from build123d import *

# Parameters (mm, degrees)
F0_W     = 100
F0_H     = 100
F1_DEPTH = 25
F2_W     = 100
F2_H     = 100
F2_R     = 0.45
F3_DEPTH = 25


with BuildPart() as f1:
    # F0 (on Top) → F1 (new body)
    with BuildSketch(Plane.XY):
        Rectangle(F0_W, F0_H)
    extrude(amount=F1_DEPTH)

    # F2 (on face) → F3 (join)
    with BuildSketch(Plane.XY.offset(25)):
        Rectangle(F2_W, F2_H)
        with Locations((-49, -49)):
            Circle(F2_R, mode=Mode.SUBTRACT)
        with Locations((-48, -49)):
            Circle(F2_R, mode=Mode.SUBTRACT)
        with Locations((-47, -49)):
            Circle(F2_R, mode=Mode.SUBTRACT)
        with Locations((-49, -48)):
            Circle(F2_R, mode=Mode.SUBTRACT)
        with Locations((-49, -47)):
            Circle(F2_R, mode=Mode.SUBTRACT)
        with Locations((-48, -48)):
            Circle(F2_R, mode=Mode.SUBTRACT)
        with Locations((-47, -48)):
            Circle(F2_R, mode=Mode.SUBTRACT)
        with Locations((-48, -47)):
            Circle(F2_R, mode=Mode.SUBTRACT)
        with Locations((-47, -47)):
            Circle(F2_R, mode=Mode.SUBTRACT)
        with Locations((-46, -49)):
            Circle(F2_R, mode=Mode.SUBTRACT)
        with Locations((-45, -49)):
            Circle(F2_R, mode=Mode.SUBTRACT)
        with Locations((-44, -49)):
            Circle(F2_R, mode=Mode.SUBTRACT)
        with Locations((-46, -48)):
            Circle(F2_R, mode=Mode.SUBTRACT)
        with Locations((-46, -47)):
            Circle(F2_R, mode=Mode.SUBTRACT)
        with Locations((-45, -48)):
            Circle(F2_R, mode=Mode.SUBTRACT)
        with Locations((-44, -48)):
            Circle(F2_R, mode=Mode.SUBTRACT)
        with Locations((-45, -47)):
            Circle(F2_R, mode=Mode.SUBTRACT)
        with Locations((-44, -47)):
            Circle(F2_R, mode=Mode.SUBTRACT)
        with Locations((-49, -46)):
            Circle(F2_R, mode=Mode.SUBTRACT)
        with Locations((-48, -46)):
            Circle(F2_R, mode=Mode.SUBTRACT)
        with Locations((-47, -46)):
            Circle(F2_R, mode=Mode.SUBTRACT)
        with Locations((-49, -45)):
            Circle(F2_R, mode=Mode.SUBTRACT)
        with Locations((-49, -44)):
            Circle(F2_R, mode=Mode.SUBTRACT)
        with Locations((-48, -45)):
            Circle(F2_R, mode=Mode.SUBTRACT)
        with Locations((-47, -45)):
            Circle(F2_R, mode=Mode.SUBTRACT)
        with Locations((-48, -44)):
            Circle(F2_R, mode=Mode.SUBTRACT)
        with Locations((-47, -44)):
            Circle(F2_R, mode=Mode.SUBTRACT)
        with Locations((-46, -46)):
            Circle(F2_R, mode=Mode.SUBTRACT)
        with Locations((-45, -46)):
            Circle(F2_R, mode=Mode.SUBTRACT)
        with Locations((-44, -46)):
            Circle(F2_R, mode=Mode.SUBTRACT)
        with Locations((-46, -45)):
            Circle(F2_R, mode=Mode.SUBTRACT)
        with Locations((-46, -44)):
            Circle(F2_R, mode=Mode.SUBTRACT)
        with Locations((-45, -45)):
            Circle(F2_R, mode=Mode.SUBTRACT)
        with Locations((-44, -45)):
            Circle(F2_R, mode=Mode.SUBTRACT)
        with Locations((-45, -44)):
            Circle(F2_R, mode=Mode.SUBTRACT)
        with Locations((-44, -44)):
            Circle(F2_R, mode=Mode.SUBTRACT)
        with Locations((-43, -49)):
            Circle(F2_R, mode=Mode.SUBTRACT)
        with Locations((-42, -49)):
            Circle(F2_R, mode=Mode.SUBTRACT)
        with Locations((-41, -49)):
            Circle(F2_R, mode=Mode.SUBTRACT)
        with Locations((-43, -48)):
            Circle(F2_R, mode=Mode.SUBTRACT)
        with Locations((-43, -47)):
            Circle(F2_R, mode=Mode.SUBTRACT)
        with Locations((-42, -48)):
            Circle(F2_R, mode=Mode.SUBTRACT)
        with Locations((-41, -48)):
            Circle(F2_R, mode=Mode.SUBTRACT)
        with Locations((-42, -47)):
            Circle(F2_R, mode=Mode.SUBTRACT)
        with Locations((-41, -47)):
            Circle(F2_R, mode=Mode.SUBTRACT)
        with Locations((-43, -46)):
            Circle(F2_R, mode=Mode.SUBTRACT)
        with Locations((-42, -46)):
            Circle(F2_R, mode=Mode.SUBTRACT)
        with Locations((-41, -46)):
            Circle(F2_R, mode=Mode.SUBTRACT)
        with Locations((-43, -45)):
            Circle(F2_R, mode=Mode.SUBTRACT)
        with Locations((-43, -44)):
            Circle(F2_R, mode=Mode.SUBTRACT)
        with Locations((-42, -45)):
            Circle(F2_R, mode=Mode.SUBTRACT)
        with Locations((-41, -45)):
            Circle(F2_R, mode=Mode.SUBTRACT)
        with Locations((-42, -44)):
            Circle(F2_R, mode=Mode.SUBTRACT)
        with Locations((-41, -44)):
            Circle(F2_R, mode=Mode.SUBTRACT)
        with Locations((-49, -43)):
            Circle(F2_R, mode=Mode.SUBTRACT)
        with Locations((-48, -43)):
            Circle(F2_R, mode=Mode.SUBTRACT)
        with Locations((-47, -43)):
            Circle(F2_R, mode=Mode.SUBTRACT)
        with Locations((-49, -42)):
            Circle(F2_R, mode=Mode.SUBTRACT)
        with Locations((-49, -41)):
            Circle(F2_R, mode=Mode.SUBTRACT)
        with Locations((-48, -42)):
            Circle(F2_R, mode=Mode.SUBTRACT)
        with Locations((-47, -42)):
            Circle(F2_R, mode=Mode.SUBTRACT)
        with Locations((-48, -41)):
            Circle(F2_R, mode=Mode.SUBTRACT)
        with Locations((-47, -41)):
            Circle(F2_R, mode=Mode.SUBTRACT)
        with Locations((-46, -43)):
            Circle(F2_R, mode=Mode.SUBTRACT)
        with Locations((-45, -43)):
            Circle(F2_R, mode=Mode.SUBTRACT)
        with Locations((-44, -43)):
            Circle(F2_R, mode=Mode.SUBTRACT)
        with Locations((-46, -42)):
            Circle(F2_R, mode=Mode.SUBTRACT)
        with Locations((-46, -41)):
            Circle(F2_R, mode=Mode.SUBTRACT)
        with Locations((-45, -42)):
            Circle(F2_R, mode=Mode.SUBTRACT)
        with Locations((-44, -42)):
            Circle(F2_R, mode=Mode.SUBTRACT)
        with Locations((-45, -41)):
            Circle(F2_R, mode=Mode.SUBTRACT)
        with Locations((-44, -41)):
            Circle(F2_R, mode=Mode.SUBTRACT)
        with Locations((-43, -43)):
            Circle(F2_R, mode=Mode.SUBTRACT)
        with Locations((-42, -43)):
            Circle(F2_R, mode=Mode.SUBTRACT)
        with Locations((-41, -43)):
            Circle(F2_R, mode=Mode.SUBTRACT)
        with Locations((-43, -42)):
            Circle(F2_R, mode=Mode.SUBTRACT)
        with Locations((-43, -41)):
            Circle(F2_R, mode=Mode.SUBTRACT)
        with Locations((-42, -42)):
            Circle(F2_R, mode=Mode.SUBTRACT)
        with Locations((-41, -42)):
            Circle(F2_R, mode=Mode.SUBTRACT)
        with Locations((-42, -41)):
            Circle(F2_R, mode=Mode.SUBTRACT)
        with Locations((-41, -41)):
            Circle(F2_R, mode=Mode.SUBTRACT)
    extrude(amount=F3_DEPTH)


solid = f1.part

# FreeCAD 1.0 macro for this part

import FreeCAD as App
import Part
import Sketcher
Q = App.Units.Quantity

doc = App.newDocument("Part")
body = doc.addObject("PartDesign::Body", "Body")

# Sketch on XY plane
sketch1 = doc.addObject("Sketcher::SketchObject", "Sketch")
body.addObject(sketch1)
sketch1.AttachmentSupport = (doc.XY_Plane, [""])
sketch1.MapMode = "FlatFace"
sketch1.addGeometry([
    Part.LineSegment(App.Vector(-50, 50, 0), App.Vector(-50, -50, 0)),
    Part.LineSegment(App.Vector(-50, -50, 0), App.Vector(50, -50, 0)),
    Part.LineSegment(App.Vector(50, -50, 0), App.Vector(50, 50, 0)),
    Part.LineSegment(App.Vector(50, 50, 0), App.Vector(-50, 50, 0)),
], False)
sketch1.addConstraint([
    Sketcher.Constraint("Coincident", 0, 2, 1, 1),
    Sketcher.Constraint("Coincident", 1, 2, 2, 1),
    Sketcher.Constraint("Coincident", 2, 2, 3, 1),
    Sketcher.Constraint("Coincident", 3, 2, 0, 1),
    Sketcher.Constraint("Vertical", 0),
    Sketcher.Constraint("Horizontal", 1),
    Sketcher.Constraint("Vertical", 2),
    Sketcher.Constraint("Horizontal", 3),
    Sketcher.Constraint("Symmetric", 0, 2, 2, 2, -1, 1),
    Sketcher.Constraint("Equal", 3, 0),
    Sketcher.Constraint("DistanceX", 1, 1, 1, 2, Q("100 mm")),
])
pad1 = doc.addObject("PartDesign::Pad", "Pad")
body.addObject(pad1)
pad1.Profile = sketch1
pad1.Length = 25

# Sketch on XY plane
sketch2 = doc.addObject("Sketcher::SketchObject", "Sketch001")
body.addObject(sketch2)
sketch2.AttachmentSupport = (doc.XY_Plane, [""])
sketch2.MapMode = "FlatFace"
sketch2.AttachmentOffset = App.Placement(App.Vector(0, 0, 25), App.Rotation())
sketch2.addGeometry([
    Part.LineSegment(App.Vector(-50, 50, 0), App.Vector(-50, -50, 0)),  # 0
    Part.LineSegment(App.Vector(-50, -50, 0), App.Vector(50, -50, 0)),  # 1
    Part.LineSegment(App.Vector(50, -50, 0), App.Vector(50, 50, 0)),  # 2
    Part.LineSegment(App.Vector(50, 50, 0), App.Vector(-50, 50, 0)),  # 3
    Part.Circle(App.Vector(-49, -49, 0), App.Vector(0, 0, 1), 0.45),  # 4
    Part.Circle(App.Vector(-48, -49, 0), App.Vector(0, 0, 1), 0.45),  # 5
    Part.Circle(App.Vector(-49, -48, 0), App.Vector(0, 0, 1), 0.45),  # 6
    Part.Circle(App.Vector(-48, -48, 0), App.Vector(0, 0, 1), 0.45),  # 7
    Part.Circle(App.Vector(-47, -49, 0), App.Vector(0, 0, 1), 0.45),  # 8
    Part.Circle(App.Vector(-46, -49, 0), App.Vector(0, 0, 1), 0.45),  # 9
    Part.Circle(App.Vector(-47, -48, 0), App.Vector(0, 0, 1), 0.45),  # 10
    Part.Circle(App.Vector(-46, -48, 0), App.Vector(0, 0, 1), 0.45),  # 11
    Part.Circle(App.Vector(-49, -47, 0), App.Vector(0, 0, 1), 0.45),  # 12
    Part.Circle(App.Vector(-48, -47, 0), App.Vector(0, 0, 1), 0.45),  # 13
    Part.Circle(App.Vector(-49, -46, 0), App.Vector(0, 0, 1), 0.45),  # 14
    Part.Circle(App.Vector(-48, -46, 0), App.Vector(0, 0, 1), 0.45),  # 15
    Part.Circle(App.Vector(-47, -47, 0), App.Vector(0, 0, 1), 0.45),  # 16
    Part.Circle(App.Vector(-46, -47, 0), App.Vector(0, 0, 1), 0.45),  # 17
    Part.Circle(App.Vector(-47, -46, 0), App.Vector(0, 0, 1), 0.45),  # 18
    Part.Circle(App.Vector(-46, -46, 0), App.Vector(0, 0, 1), 0.45),  # 19
    Part.Circle(App.Vector(-45, -49, 0), App.Vector(0, 0, 1), 0.45),  # 20
    Part.Circle(App.Vector(-44, -49, 0), App.Vector(0, 0, 1), 0.45),  # 21
    Part.Circle(App.Vector(-43, -49, 0), App.Vector(0, 0, 1), 0.45),  # 22
    Part.Circle(App.Vector(-45, -48, 0), App.Vector(0, 0, 1), 0.45),  # 23
    Part.Circle(App.Vector(-44, -48, 0), App.Vector(0, 0, 1), 0.45),  # 24
    Part.Circle(App.Vector(-43, -48, 0), App.Vector(0, 0, 1), 0.45),  # 25
    Part.Circle(App.Vector(-42, -49, 0), App.Vector(0, 0, 1), 0.45),  # 26
    Part.Circle(App.Vector(-41, -49, 0), App.Vector(0, 0, 1), 0.45),  # 27
    Part.Circle(App.Vector(-42, -48, 0), App.Vector(0, 0, 1), 0.45),  # 28
    Part.Circle(App.Vector(-41, -48, 0), App.Vector(0, 0, 1), 0.45),  # 29
    Part.Circle(App.Vector(-45, -47, 0), App.Vector(0, 0, 1), 0.45),  # 30
    Part.Circle(App.Vector(-44, -47, 0), App.Vector(0, 0, 1), 0.45),  # 31
    Part.Circle(App.Vector(-43, -47, 0), App.Vector(0, 0, 1), 0.45),  # 32
    Part.Circle(App.Vector(-45, -46, 0), App.Vector(0, 0, 1), 0.45),  # 33
    Part.Circle(App.Vector(-44, -46, 0), App.Vector(0, 0, 1), 0.45),  # 34
    Part.Circle(App.Vector(-43, -46, 0), App.Vector(0, 0, 1), 0.45),  # 35
    Part.Circle(App.Vector(-42, -47, 0), App.Vector(0, 0, 1), 0.45),  # 36
    Part.Circle(App.Vector(-41, -47, 0), App.Vector(0, 0, 1), 0.45),  # 37
    Part.Circle(App.Vector(-42, -46, 0), App.Vector(0, 0, 1), 0.45),  # 38
    Part.Circle(App.Vector(-41, -46, 0), App.Vector(0, 0, 1), 0.45),  # 39
    Part.Circle(App.Vector(-49, -45, 0), App.Vector(0, 0, 1), 0.45),  # 40
    Part.Circle(App.Vector(-49, -44, 0), App.Vector(0, 0, 1), 0.45),  # 41
    Part.Circle(App.Vector(-48, -45, 0), App.Vector(0, 0, 1), 0.45),  # 42
    Part.Circle(App.Vector(-48, -44, 0), App.Vector(0, 0, 1), 0.45),  # 43
    Part.Circle(App.Vector(-49, -43, 0), App.Vector(0, 0, 1), 0.45),  # 44
    Part.Circle(App.Vector(-48, -43, 0), App.Vector(0, 0, 1), 0.45),  # 45
    Part.Circle(App.Vector(-47, -45, 0), App.Vector(0, 0, 1), 0.45),  # 46
    Part.Circle(App.Vector(-47, -44, 0), App.Vector(0, 0, 1), 0.45),  # 47
    Part.Circle(App.Vector(-46, -45, 0), App.Vector(0, 0, 1), 0.45),  # 48
    Part.Circle(App.Vector(-46, -44, 0), App.Vector(0, 0, 1), 0.45),  # 49
    Part.Circle(App.Vector(-47, -43, 0), App.Vector(0, 0, 1), 0.45),  # 50
    Part.Circle(App.Vector(-46, -43, 0), App.Vector(0, 0, 1), 0.45),  # 51
    Part.Circle(App.Vector(-49, -42, 0), App.Vector(0, 0, 1), 0.45),  # 52
    Part.Circle(App.Vector(-48, -42, 0), App.Vector(0, 0, 1), 0.45),  # 53
    Part.Circle(App.Vector(-49, -41, 0), App.Vector(0, 0, 1), 0.45),  # 54
    Part.Circle(App.Vector(-48, -41, 0), App.Vector(0, 0, 1), 0.45),  # 55
    Part.Circle(App.Vector(-47, -42, 0), App.Vector(0, 0, 1), 0.45),  # 56
    Part.Circle(App.Vector(-46, -42, 0), App.Vector(0, 0, 1), 0.45),  # 57
    Part.Circle(App.Vector(-47, -41, 0), App.Vector(0, 0, 1), 0.45),  # 58
    Part.Circle(App.Vector(-46, -41, 0), App.Vector(0, 0, 1), 0.45),  # 59
    Part.Circle(App.Vector(-45, -45, 0), App.Vector(0, 0, 1), 0.45),  # 60
    Part.Circle(App.Vector(-44, -45, 0), App.Vector(0, 0, 1), 0.45),  # 61
    Part.Circle(App.Vector(-45, -44, 0), App.Vector(0, 0, 1), 0.45),  # 62
    Part.Circle(App.Vector(-44, -44, 0), App.Vector(0, 0, 1), 0.45),  # 63
    Part.Circle(App.Vector(-43, -45, 0), App.Vector(0, 0, 1), 0.45),  # 64
    Part.Circle(App.Vector(-43, -44, 0), App.Vector(0, 0, 1), 0.45),  # 65
    Part.Circle(App.Vector(-45, -43, 0), App.Vector(0, 0, 1), 0.45),  # 66
    Part.Circle(App.Vector(-44, -43, 0), App.Vector(0, 0, 1), 0.45),  # 67
    Part.Circle(App.Vector(-43, -43, 0), App.Vector(0, 0, 1), 0.45),  # 68
    Part.Circle(App.Vector(-42, -45, 0), App.Vector(0, 0, 1), 0.45),  # 69
    Part.Circle(App.Vector(-42, -44, 0), App.Vector(0, 0, 1), 0.45),  # 70
    Part.Circle(App.Vector(-41, -45, 0), App.Vector(0, 0, 1), 0.45),  # 71
    Part.Circle(App.Vector(-41, -44, 0), App.Vector(0, 0, 1), 0.45),  # 72
    Part.Circle(App.Vector(-42, -43, 0), App.Vector(0, 0, 1), 0.45),  # 73
    Part.Circle(App.Vector(-41, -43, 0), App.Vector(0, 0, 1), 0.45),  # 74
    Part.Circle(App.Vector(-45, -42, 0), App.Vector(0, 0, 1), 0.45),  # 75
    Part.Circle(App.Vector(-44, -42, 0), App.Vector(0, 0, 1), 0.45),  # 76
    Part.Circle(App.Vector(-43, -42, 0), App.Vector(0, 0, 1), 0.45),  # 77
    Part.Circle(App.Vector(-45, -41, 0), App.Vector(0, 0, 1), 0.45),  # 78
    Part.Circle(App.Vector(-44, -41, 0), App.Vector(0, 0, 1), 0.45),  # 79
    Part.Circle(App.Vector(-43, -41, 0), App.Vector(0, 0, 1), 0.45),  # 80
    Part.Circle(App.Vector(-42, -42, 0), App.Vector(0, 0, 1), 0.45),  # 81
    Part.Circle(App.Vector(-41, -42, 0), App.Vector(0, 0, 1), 0.45),  # 82
    Part.Circle(App.Vector(-42, -41, 0), App.Vector(0, 0, 1), 0.45),  # 83
    Part.Circle(App.Vector(-41, -41, 0), App.Vector(0, 0, 1), 0.45),  # 84
], False)
sketch2.addConstraint([
    Sketcher.Constraint("Coincident", 0, 2, 1, 1),
    Sketcher.Constraint("Coincident", 1, 2, 2, 1),
    Sketcher.Constraint("Coincident", 2, 2, 3, 1),
    Sketcher.Constraint("Coincident", 3, 2, 0, 1),
    Sketcher.Constraint("Vertical", 0),
    Sketcher.Constraint("Horizontal", 1),
    Sketcher.Constraint("Vertical", 2),
    Sketcher.Constraint("Horizontal", 3),
    Sketcher.Constraint("Equal", 4, 5),
    Sketcher.Constraint("Equal", 5, 6),
    Sketcher.Constraint("Equal", 6, 7),
    Sketcher.Constraint("Equal", 7, 8),
    Sketcher.Constraint("Equal", 8, 9),
    Sketcher.Constraint("Equal", 9, 10),
    Sketcher.Constraint("Equal", 10, 11),
    Sketcher.Constraint("Equal", 11, 12),
    Sketcher.Constraint("Equal", 12, 13),
    Sketcher.Constraint("Equal", 13, 14),
    Sketcher.Constraint("Equal", 14, 15),
    Sketcher.Constraint("Equal", 15, 16),
    Sketcher.Constraint("Equal", 16, 17),
    Sketcher.Constraint("Equal", 17, 18),
    Sketcher.Constraint("Equal", 18, 19),
    Sketcher.Constraint("Equal", 19, 20),
    Sketcher.Constraint("Equal", 20, 21),
    Sketcher.Constraint("Equal", 21, 22),
    Sketcher.Constraint("Equal", 22, 23),
    Sketcher.Constraint("Equal", 23, 24),
    Sketcher.Constraint("Equal", 24, 25),
    Sketcher.Constraint("Equal", 25, 26),
    Sketcher.Constraint("Equal", 26, 27),
    Sketcher.Constraint("Equal", 27, 28),
    Sketcher.Constraint("Equal", 28, 29),
    Sketcher.Constraint("Equal", 29, 30),
    Sketcher.Constraint("Equal", 30, 31),
    Sketcher.Constraint("Equal", 31, 32),
    Sketcher.Constraint("Equal", 32, 33),
    Sketcher.Constraint("Equal", 33, 34),
    Sketcher.Constraint("Equal", 34, 35),
    Sketcher.Constraint("Equal", 35, 36),
    Sketcher.Constraint("Equal", 36, 37),
    Sketcher.Constraint("Equal", 37, 38),
    Sketcher.Constraint("Equal", 38, 39),
    Sketcher.Constraint("Equal", 39, 40),
    Sketcher.Constraint("Equal", 40, 41),
    Sketcher.Constraint("Equal", 41, 42),
    Sketcher.Constraint("Equal", 42, 43),
    Sketcher.Constraint("Equal", 43, 44),
    Sketcher.Constraint("Equal", 44, 45),
    Sketcher.Constraint("Equal", 45, 46),
    Sketcher.Constraint("Equal", 46, 47),
    Sketcher.Constraint("Equal", 47, 48),
    Sketcher.Constraint("Equal", 48, 49),
    Sketcher.Constraint("Equal", 49, 50),
    Sketcher.Constraint("Equal", 50, 51),
    Sketcher.Constraint("Equal", 51, 52),
    Sketcher.Constraint("Equal", 52, 53),
    Sketcher.Constraint("Equal", 53, 54),
    Sketcher.Constraint("Equal", 54, 55),
    Sketcher.Constraint("Equal", 55, 56),
    Sketcher.Constraint("Equal", 56, 57),
    Sketcher.Constraint("Equal", 57, 58),
    Sketcher.Constraint("Equal", 58, 59),
    Sketcher.Constraint("Equal", 59, 60),
    Sketcher.Constraint("Equal", 60, 61),
    Sketcher.Constraint("Equal", 61, 62),
    Sketcher.Constraint("Equal", 62, 63),
    Sketcher.Constraint("Equal", 63, 64),
    Sketcher.Constraint("Equal", 64, 65),
    Sketcher.Constraint("Equal", 65, 66),
    Sketcher.Constraint("Equal", 66, 67),
    Sketcher.Constraint("Equal", 67, 68),
    Sketcher.Constraint("Equal", 68, 69),
    Sketcher.Constraint("Equal", 69, 70),
    Sketcher.Constraint("Equal", 70, 71),
    Sketcher.Constraint("Equal", 71, 72),
    Sketcher.Constraint("Equal", 72, 73),
    Sketcher.Constraint("Equal", 73, 74),
    Sketcher.Constraint("Equal", 74, 75),
    Sketcher.Constraint("Equal", 75, 76),
    Sketcher.Constraint("Equal", 76, 77),
    Sketcher.Constraint("Equal", 77, 78),
    Sketcher.Constraint("Equal", 78, 79),
    Sketcher.Constraint("Equal", 79, 80),
    Sketcher.Constraint("Equal", 80, 81),
    Sketcher.Constraint("Equal", 81, 82),
    Sketcher.Constraint("Equal", 82, 83),
    Sketcher.Constraint("Equal", 83, 84),
    Sketcher.Constraint("Symmetric", 0, 2, 2, 2, -1, 1),
    Sketcher.Constraint("Horizontal", 4, 3, 5, 3),
    Sketcher.Constraint("Horizontal", 6, 3, 7, 3),
    Sketcher.Constraint("Horizontal", 5, 3, 8, 3),
    Sketcher.Constraint("Horizontal", 8, 3, 9, 3),
    Sketcher.Constraint("Horizontal", 7, 3, 10, 3),
    Sketcher.Constraint("Horizontal", 10, 3, 11, 3),
    Sketcher.Constraint("Horizontal", 12, 3, 13, 3),
    Sketcher.Constraint("Horizontal", 14, 3, 15, 3),
    Sketcher.Constraint("Horizontal", 13, 3, 16, 3),
    Sketcher.Constraint("Horizontal", 16, 3, 17, 3),
    Sketcher.Constraint("Horizontal", 15, 3, 18, 3),
    Sketcher.Constraint("Horizontal", 18, 3, 19, 3),
    Sketcher.Constraint("Horizontal", 9, 3, 20, 3),
    Sketcher.Constraint("Horizontal", 20, 3, 21, 3),
    Sketcher.Constraint("Horizontal", 21, 3, 22, 3),
    Sketcher.Constraint("Horizontal", 11, 3, 23, 3),
    Sketcher.Constraint("Horizontal", 23, 3, 24, 3),
    Sketcher.Constraint("Horizontal", 24, 3, 25, 3),
    Sketcher.Constraint("Horizontal", 22, 3, 26, 3),
    Sketcher.Constraint("Horizontal", 26, 3, 27, 3),
    Sketcher.Constraint("Horizontal", 25, 3, 28, 3),
    Sketcher.Constraint("Horizontal", 28, 3, 29, 3),
    Sketcher.Constraint("Horizontal", 17, 3, 30, 3),
    Sketcher.Constraint("Horizontal", 30, 3, 31, 3),
    Sketcher.Constraint("Horizontal", 31, 3, 32, 3),
    Sketcher.Constraint("Horizontal", 19, 3, 33, 3),
    Sketcher.Constraint("Horizontal", 33, 3, 34, 3),
    Sketcher.Constraint("Horizontal", 34, 3, 35, 3),
    Sketcher.Constraint("Horizontal", 32, 3, 36, 3),
    Sketcher.Constraint("Horizontal", 36, 3, 37, 3),
    Sketcher.Constraint("Horizontal", 35, 3, 38, 3),
    Sketcher.Constraint("Horizontal", 38, 3, 39, 3),
    Sketcher.Constraint("Horizontal", 40, 3, 42, 3),
    Sketcher.Constraint("Horizontal", 41, 3, 43, 3),
    Sketcher.Constraint("Horizontal", 44, 3, 45, 3),
    Sketcher.Constraint("Horizontal", 42, 3, 46, 3),
    Sketcher.Constraint("Horizontal", 43, 3, 47, 3),
    Sketcher.Constraint("Horizontal", 46, 3, 48, 3),
    Sketcher.Constraint("Horizontal", 47, 3, 49, 3),
    Sketcher.Constraint("Horizontal", 45, 3, 50, 3),
    Sketcher.Constraint("Horizontal", 50, 3, 51, 3),
    Sketcher.Constraint("Horizontal", 52, 3, 53, 3),
    Sketcher.Constraint("Horizontal", 54, 3, 55, 3),
    Sketcher.Constraint("Horizontal", 53, 3, 56, 3),
    Sketcher.Constraint("Horizontal", 56, 3, 57, 3),
    Sketcher.Constraint("Horizontal", 55, 3, 58, 3),
    Sketcher.Constraint("Horizontal", 58, 3, 59, 3),
    Sketcher.Constraint("Horizontal", 48, 3, 60, 3),
    Sketcher.Constraint("Horizontal", 60, 3, 61, 3),
    Sketcher.Constraint("Horizontal", 49, 3, 62, 3),
    Sketcher.Constraint("Horizontal", 62, 3, 63, 3),
    Sketcher.Constraint("Horizontal", 61, 3, 64, 3),
    Sketcher.Constraint("Horizontal", 63, 3, 65, 3),
    Sketcher.Constraint("Horizontal", 51, 3, 66, 3),
    Sketcher.Constraint("Horizontal", 66, 3, 67, 3),
    Sketcher.Constraint("Horizontal", 67, 3, 68, 3),
    Sketcher.Constraint("Horizontal", 64, 3, 69, 3),
    Sketcher.Constraint("Horizontal", 65, 3, 70, 3),
    Sketcher.Constraint("Horizontal", 69, 3, 71, 3),
    Sketcher.Constraint("Horizontal", 70, 3, 72, 3),
    Sketcher.Constraint("Horizontal", 68, 3, 73, 3),
    Sketcher.Constraint("Horizontal", 73, 3, 74, 3),
    Sketcher.Constraint("Horizontal", 57, 3, 75, 3),
    Sketcher.Constraint("Horizontal", 75, 3, 76, 3),
    Sketcher.Constraint("Horizontal", 76, 3, 77, 3),
    Sketcher.Constraint("Horizontal", 59, 3, 78, 3),
    Sketcher.Constraint("Horizontal", 78, 3, 79, 3),
    Sketcher.Constraint("Horizontal", 79, 3, 80, 3),
    Sketcher.Constraint("Horizontal", 77, 3, 81, 3),
    Sketcher.Constraint("Horizontal", 81, 3, 82, 3),
    Sketcher.Constraint("Horizontal", 80, 3, 83, 3),
    Sketcher.Constraint("Horizontal", 83, 3, 84, 3),
    Sketcher.Constraint("Vertical", 4, 3, 6, 3),
    Sketcher.Constraint("Vertical", 5, 3, 7, 3),
    Sketcher.Constraint("Vertical", 8, 3, 10, 3),
    Sketcher.Constraint("Vertical", 9, 3, 11, 3),
    Sketcher.Constraint("Vertical", 6, 3, 12, 3),
    Sketcher.Constraint("Vertical", 7, 3, 13, 3),
    Sketcher.Constraint("Vertical", 12, 3, 14, 3),
    Sketcher.Constraint("Vertical", 13, 3, 15, 3),
    Sketcher.Constraint("Vertical", 10, 3, 16, 3),
    Sketcher.Constraint("Vertical", 11, 3, 17, 3),
    Sketcher.Constraint("Vertical", 16, 3, 18, 3),
    Sketcher.Constraint("Vertical", 17, 3, 19, 3),
    Sketcher.Constraint("Vertical", 20, 3, 23, 3),
    Sketcher.Constraint("Vertical", 21, 3, 24, 3),
    Sketcher.Constraint("Vertical", 22, 3, 25, 3),
    Sketcher.Constraint("Vertical", 26, 3, 28, 3),
    Sketcher.Constraint("Vertical", 27, 3, 29, 3),
    Sketcher.Constraint("Vertical", 23, 3, 30, 3),
    Sketcher.Constraint("Vertical", 24, 3, 31, 3),
    Sketcher.Constraint("Vertical", 25, 3, 32, 3),
    Sketcher.Constraint("Vertical", 30, 3, 33, 3),
    Sketcher.Constraint("Vertical", 31, 3, 34, 3),
    Sketcher.Constraint("Vertical", 32, 3, 35, 3),
    Sketcher.Constraint("Vertical", 28, 3, 36, 3),
    Sketcher.Constraint("Vertical", 29, 3, 37, 3),
    Sketcher.Constraint("Vertical", 36, 3, 38, 3),
    Sketcher.Constraint("Vertical", 37, 3, 39, 3),
    Sketcher.Constraint("Vertical", 14, 3, 40, 3),
    Sketcher.Constraint("Vertical", 40, 3, 41, 3),
    Sketcher.Constraint("Vertical", 15, 3, 42, 3),
    Sketcher.Constraint("Vertical", 42, 3, 43, 3),
    Sketcher.Constraint("Vertical", 41, 3, 44, 3),
    Sketcher.Constraint("Vertical", 43, 3, 45, 3),
    Sketcher.Constraint("Vertical", 18, 3, 46, 3),
    Sketcher.Constraint("Vertical", 46, 3, 47, 3),
    Sketcher.Constraint("Vertical", 19, 3, 48, 3),
    Sketcher.Constraint("Vertical", 48, 3, 49, 3),
    Sketcher.Constraint("Vertical", 47, 3, 50, 3),
    Sketcher.Constraint("Vertical", 49, 3, 51, 3),
    Sketcher.Constraint("Vertical", 44, 3, 52, 3),
    Sketcher.Constraint("Vertical", 45, 3, 53, 3),
    Sketcher.Constraint("Vertical", 52, 3, 54, 3),
    Sketcher.Constraint("Vertical", 53, 3, 55, 3),
    Sketcher.Constraint("Vertical", 50, 3, 56, 3),
    Sketcher.Constraint("Vertical", 51, 3, 57, 3),
    Sketcher.Constraint("Vertical", 56, 3, 58, 3),
    Sketcher.Constraint("Vertical", 57, 3, 59, 3),
    Sketcher.Constraint("Vertical", 33, 3, 60, 3),
    Sketcher.Constraint("Vertical", 34, 3, 61, 3),
    Sketcher.Constraint("Vertical", 60, 3, 62, 3),
    Sketcher.Constraint("Vertical", 61, 3, 63, 3),
    Sketcher.Constraint("Vertical", 35, 3, 64, 3),
    Sketcher.Constraint("Vertical", 64, 3, 65, 3),
    Sketcher.Constraint("Vertical", 62, 3, 66, 3),
    Sketcher.Constraint("Vertical", 63, 3, 67, 3),
    Sketcher.Constraint("Vertical", 65, 3, 68, 3),
    Sketcher.Constraint("Vertical", 38, 3, 69, 3),
    Sketcher.Constraint("Vertical", 69, 3, 70, 3),
    Sketcher.Constraint("Vertical", 39, 3, 71, 3),
    Sketcher.Constraint("Vertical", 71, 3, 72, 3),
    Sketcher.Constraint("Vertical", 70, 3, 73, 3),
    Sketcher.Constraint("Vertical", 72, 3, 74, 3),
    Sketcher.Constraint("Vertical", 66, 3, 75, 3),
    Sketcher.Constraint("Vertical", 67, 3, 76, 3),
    Sketcher.Constraint("Vertical", 68, 3, 77, 3),
    Sketcher.Constraint("Vertical", 75, 3, 78, 3),
    Sketcher.Constraint("Vertical", 76, 3, 79, 3),
    Sketcher.Constraint("Vertical", 77, 3, 80, 3),
    Sketcher.Constraint("Vertical", 73, 3, 81, 3),
    Sketcher.Constraint("Vertical", 74, 3, 82, 3),
    Sketcher.Constraint("Vertical", 81, 3, 83, 3),
    Sketcher.Constraint("Vertical", 82, 3, 84, 3),
    Sketcher.Constraint("Equal", 3, 0),
    Sketcher.Constraint("Diameter", 4, Q("0.9 mm")),
    Sketcher.Constraint("DistanceX", 1, 1, 1, 2, Q("100 mm")),
    Sketcher.Constraint("DistanceX", 4, 3, -1, 1, Q("49 mm")),
    Sketcher.Constraint("DistanceY", 4, 3, -1, 1, Q("49 mm")),
    Sketcher.Constraint("DistanceX", 5, 3, -1, 1, Q("48 mm")),
    Sketcher.Constraint("DistanceY", 6, 3, -1, 1, Q("48 mm")),
    Sketcher.Constraint("DistanceX", 8, 3, -1, 1, Q("47 mm")),
    Sketcher.Constraint("DistanceX", 9, 3, -1, 1, Q("46 mm")),
    Sketcher.Constraint("DistanceY", 12, 3, -1, 1, Q("47 mm")),
    Sketcher.Constraint("DistanceY", 14, 3, -1, 1, Q("46 mm")),
    Sketcher.Constraint("DistanceX", 20, 3, -1, 1, Q("45 mm")),
    Sketcher.Constraint("DistanceX", 21, 3, -1, 1, Q("44 mm")),
    Sketcher.Constraint("DistanceX", 22, 3, -1, 1, Q("43 mm")),
    Sketcher.Constraint("DistanceX", 26, 3, -1, 1, Q("42 mm")),
    Sketcher.Constraint("DistanceX", 27, 3, -1, 1, Q("41 mm")),
    Sketcher.Constraint("DistanceY", 40, 3, -1, 1, Q("45 mm")),
    Sketcher.Constraint("DistanceY", 41, 3, -1, 1, Q("44 mm")),
    Sketcher.Constraint("DistanceY", 44, 3, -1, 1, Q("43 mm")),
    Sketcher.Constraint("DistanceY", 52, 3, -1, 1, Q("42 mm")),
    Sketcher.Constraint("DistanceY", 54, 3, -1, 1, Q("41 mm")),
])
pad2 = doc.addObject("PartDesign::Pad", "Pad001")
body.addObject(pad2)
pad2.Profile = sketch2
pad2.Length = 25

doc.recompute()
